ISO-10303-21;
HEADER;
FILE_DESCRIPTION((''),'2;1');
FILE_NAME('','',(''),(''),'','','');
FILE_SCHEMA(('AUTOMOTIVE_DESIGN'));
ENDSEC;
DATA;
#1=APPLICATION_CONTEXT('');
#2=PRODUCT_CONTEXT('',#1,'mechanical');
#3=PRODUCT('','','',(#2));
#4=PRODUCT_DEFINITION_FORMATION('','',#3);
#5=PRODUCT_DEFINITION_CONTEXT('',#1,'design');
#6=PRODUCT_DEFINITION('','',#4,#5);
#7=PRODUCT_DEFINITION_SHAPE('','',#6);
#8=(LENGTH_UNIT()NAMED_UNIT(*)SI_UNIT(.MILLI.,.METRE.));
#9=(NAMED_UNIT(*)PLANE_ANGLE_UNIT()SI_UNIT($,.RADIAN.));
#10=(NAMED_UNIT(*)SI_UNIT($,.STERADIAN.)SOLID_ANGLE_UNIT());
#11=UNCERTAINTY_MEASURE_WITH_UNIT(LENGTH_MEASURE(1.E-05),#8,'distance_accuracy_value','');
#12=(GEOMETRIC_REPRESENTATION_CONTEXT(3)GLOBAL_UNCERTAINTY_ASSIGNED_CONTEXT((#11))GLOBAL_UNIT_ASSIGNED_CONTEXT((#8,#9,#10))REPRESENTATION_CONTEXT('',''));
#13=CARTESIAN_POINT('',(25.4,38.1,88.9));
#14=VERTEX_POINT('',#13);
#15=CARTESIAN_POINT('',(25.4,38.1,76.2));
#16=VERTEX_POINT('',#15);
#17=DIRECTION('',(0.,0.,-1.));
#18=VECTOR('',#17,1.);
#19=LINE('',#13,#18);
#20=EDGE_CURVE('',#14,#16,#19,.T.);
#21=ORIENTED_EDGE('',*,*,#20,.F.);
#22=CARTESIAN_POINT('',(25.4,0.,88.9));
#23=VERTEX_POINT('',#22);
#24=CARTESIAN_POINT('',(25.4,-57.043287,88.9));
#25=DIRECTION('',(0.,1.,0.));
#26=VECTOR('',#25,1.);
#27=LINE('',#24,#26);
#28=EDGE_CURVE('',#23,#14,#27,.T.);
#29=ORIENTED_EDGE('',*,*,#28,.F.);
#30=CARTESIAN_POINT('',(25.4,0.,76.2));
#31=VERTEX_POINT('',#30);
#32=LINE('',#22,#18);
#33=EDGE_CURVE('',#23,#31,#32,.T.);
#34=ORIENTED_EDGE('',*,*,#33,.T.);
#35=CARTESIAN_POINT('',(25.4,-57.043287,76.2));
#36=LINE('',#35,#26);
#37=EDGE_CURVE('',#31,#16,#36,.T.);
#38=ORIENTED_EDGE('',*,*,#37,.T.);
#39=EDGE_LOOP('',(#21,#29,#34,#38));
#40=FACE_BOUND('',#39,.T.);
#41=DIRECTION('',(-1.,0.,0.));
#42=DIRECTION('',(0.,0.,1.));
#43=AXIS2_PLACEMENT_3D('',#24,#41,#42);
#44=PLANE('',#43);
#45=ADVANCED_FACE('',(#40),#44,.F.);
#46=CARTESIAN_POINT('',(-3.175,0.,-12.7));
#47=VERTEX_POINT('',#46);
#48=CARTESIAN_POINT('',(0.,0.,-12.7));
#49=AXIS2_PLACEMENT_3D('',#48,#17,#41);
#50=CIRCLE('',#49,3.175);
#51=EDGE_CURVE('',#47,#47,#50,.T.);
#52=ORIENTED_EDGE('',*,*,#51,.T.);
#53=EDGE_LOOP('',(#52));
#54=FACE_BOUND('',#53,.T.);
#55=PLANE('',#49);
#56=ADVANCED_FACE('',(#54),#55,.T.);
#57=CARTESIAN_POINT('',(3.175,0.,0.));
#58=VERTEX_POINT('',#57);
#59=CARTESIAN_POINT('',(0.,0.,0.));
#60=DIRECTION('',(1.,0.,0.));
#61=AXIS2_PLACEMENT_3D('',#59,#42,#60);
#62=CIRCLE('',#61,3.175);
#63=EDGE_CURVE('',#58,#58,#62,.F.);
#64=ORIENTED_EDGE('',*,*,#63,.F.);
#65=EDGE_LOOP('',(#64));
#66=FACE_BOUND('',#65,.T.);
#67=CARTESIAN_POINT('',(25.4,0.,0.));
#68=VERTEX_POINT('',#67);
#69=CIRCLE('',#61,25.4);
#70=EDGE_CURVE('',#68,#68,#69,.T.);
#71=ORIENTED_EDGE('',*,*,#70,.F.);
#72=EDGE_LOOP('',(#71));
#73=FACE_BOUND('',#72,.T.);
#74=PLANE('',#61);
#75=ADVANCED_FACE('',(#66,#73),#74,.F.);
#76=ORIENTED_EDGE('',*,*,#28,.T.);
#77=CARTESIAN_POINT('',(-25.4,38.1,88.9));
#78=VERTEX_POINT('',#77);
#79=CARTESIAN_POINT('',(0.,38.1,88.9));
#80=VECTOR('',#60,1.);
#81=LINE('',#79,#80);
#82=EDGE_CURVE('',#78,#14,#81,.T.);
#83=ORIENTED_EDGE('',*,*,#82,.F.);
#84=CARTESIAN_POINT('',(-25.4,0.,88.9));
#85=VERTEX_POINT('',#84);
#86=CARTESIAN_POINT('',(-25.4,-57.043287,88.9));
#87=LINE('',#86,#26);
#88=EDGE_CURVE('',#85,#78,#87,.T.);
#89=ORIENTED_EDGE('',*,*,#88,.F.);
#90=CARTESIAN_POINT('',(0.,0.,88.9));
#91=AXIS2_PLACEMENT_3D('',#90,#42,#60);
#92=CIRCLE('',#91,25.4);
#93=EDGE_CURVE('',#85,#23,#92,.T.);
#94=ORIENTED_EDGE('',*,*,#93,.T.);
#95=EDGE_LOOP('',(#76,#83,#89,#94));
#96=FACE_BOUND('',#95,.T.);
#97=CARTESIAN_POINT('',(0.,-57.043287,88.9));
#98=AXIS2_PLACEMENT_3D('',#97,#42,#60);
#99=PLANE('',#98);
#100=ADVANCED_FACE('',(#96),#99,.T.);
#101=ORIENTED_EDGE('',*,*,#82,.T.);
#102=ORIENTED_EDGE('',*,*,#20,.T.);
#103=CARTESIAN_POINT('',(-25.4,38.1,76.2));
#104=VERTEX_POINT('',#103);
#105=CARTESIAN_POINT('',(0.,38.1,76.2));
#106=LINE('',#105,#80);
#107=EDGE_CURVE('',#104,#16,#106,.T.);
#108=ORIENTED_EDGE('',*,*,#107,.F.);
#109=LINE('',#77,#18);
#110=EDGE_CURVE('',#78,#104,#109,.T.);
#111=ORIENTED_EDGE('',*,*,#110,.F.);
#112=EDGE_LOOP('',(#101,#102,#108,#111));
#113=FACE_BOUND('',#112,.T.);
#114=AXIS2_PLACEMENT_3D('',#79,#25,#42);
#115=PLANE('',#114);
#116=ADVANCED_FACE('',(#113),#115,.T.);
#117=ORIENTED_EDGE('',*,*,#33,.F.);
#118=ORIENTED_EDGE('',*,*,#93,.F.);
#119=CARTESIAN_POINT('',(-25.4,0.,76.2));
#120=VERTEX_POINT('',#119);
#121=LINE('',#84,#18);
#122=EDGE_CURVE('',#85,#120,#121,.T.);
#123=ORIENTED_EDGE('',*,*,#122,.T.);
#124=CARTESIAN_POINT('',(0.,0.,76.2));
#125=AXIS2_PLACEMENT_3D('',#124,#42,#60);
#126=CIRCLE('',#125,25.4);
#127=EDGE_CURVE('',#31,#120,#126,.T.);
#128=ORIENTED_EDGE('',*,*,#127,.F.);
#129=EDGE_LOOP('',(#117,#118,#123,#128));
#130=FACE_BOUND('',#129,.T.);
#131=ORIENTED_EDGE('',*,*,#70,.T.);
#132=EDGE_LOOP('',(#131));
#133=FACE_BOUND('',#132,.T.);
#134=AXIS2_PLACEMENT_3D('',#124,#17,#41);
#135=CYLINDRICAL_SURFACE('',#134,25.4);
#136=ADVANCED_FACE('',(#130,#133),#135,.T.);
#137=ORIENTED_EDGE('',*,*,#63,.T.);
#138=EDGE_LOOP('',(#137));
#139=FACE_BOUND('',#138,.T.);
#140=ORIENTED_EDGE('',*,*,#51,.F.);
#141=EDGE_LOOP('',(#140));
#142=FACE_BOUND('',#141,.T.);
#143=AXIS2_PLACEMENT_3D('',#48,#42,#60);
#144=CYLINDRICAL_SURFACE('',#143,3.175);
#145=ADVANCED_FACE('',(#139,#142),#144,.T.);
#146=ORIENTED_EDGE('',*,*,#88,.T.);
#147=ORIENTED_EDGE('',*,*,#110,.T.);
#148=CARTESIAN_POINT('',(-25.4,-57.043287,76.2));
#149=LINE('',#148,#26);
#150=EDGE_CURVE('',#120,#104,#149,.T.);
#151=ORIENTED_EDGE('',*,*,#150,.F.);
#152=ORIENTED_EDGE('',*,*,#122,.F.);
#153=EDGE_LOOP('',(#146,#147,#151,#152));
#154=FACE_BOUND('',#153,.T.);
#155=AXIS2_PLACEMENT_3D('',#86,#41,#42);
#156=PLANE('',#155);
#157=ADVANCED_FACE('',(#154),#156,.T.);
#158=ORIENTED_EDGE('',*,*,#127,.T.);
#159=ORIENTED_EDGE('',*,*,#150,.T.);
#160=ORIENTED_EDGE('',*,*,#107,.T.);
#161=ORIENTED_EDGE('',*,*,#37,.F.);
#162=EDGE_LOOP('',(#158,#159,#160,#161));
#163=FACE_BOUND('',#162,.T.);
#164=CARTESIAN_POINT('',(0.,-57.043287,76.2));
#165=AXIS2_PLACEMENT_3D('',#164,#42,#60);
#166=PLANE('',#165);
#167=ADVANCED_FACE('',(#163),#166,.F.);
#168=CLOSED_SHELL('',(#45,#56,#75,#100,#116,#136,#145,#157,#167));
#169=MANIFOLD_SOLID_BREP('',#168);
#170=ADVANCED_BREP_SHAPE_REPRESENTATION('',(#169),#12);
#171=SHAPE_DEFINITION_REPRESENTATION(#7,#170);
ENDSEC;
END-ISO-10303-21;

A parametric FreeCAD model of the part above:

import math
import FreeCAD as App
import Part
import Sketcher

V = App.Vector
Q = App.Units.Quantity

doc = App.newDocument("Part")
body = doc.addObject("PartDesign::Body", "Body")

# Sketch on XY plane
sketch1 = body.newObject("Sketcher::SketchObject", "Sketch")
sketch1.AttachmentSupport = (doc.getObject("XY_Plane"), [""])
sketch1.MapMode = "FlatFace"
sketch1.addGeometry(Part.Circle(V(0, 0, 0), V(0, 0, 1), 25), False)
sketch1.addConstraint([
    Sketcher.Constraint("Coincident", 0, 3, -1, 1),
    Sketcher.Constraint("Diameter", 0, Q("2 in")),
])
pad1 = body.newObject("PartDesign::Pad", "Pad")
pad1.Profile = sketch1
pad1.Length = Q("3 in")

# Sketch on XY plane
sketch2 = body.newObject("Sketcher::SketchObject", "Sketch001")
sketch2.AttachmentSupport = (doc.getObject("XY_Plane"), [""])
sketch2.MapMode = "FlatFace"
sketch2.AttachmentOffset = App.Placement(V(0, 0, 3 * 25.4), App.Rotation())
sketch2.addGeometry([
    Part.ArcOfCircle(Part.Circle(V(0, 0, 0), V(0, 0, 1), 25), math.radians(180), math.radians(360)),
    Part.LineSegment(V(25, 0, 0), V(25, 38, 0)),
    Part.LineSegment(V(25, 38, 0), V(-25, 38, 0)),
    Part.LineSegment(V(-25, 38, 0), V(-25, 0, 0)),
], False)
sketch2.addConstraint([
    Sketcher.Constraint("Tangent", 0, 2, 1, 1),
    Sketcher.Constraint("Coincident", 1, 2, 2, 1),
    Sketcher.Constraint("Coincident", 2, 2, 3, 1),
    Sketcher.Constraint("Tangent", 3, 2, 0, 1),
    Sketcher.Constraint("Vertical", 1),
    Sketcher.Constraint("Horizontal", 2),
    Sketcher.Constraint("Vertical", 3),
    Sketcher.Constraint("Coincident", 0, 3, -1, 1),
    Sketcher.Constraint("Radius", 0, Q("1 in")),
    Sketcher.Constraint("DistanceY", 1, 1, 1, 2, Q("1.5 in")),
])
pad2 = body.newObject("PartDesign::Pad", "Pad001")
pad2.Profile = sketch2
pad2.Length = Q("0.5 in")

# Sketch on XY plane
sketch3 = body.newObject("Sketcher::SketchObject", "Sketch002")
sketch3.AttachmentSupport = (doc.getObject("XY_Plane"), [""])
sketch3.MapMode = "FlatFace"
sketch3.addGeometry(Part.Circle(V(0, 0, 0), V(0, 0, 1), 3.2), False)
sketch3.addConstraint([
    Sketcher.Constraint("Coincident", 0, 3, -1, 1),
    Sketcher.Constraint("Diameter", 0, Q("0.25 in")),
])
pad3 = body.newObject("PartDesign::Pad", "Pad002")
pad3.Profile = sketch3
pad3.Length = Q("0.5 in")
pad3.Reversed = True

doc.recompute()
